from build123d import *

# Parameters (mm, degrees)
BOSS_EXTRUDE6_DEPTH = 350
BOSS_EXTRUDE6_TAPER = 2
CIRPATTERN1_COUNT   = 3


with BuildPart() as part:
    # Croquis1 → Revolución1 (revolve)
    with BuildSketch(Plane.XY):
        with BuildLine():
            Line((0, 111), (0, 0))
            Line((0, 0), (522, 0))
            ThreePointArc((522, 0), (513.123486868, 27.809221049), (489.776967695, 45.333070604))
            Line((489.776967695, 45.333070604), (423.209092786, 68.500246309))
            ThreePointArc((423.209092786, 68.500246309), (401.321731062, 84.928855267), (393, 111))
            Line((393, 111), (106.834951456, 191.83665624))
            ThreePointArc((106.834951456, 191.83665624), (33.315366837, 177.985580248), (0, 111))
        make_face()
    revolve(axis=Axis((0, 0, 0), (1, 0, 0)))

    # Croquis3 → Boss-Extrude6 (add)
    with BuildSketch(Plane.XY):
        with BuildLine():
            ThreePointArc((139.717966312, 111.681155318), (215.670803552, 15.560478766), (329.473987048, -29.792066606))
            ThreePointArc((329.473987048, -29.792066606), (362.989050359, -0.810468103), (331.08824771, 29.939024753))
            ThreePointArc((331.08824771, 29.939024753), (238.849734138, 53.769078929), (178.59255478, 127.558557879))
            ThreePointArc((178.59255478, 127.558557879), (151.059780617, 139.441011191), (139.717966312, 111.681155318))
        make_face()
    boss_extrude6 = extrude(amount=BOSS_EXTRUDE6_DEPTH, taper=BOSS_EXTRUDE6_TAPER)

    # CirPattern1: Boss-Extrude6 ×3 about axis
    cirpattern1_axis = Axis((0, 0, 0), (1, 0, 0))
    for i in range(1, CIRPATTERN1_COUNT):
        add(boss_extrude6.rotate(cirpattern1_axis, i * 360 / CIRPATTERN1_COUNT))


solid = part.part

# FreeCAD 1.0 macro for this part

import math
import FreeCAD as App
import Part
import Sketcher
from FreeCAD import Vector
Q = App.Units.Quantity

doc = App.newDocument("Part")
params = doc.addObject("Spreadsheet::Sheet", "Params")
for row, (alias, value) in enumerate([
    ("sketch1_radius", "48 mm"),
    ("sketch1_radius2", "45 mm"),
    ("sketch1_radius3", "84 mm"),
    ("sketch1_width", "522 mm"),
    ("sketch1_height", "111 mm"),
    ("revolution_angle", "360 deg"),
    ("sketch2_radius", "237 mm"),
    ("sketch2_radius2", "30 mm"),
    ("sketch2_radius3", "153 mm"),
    ("sketch2_radius4", "21 mm"),
    ("pad1_length", "350 mm"),
    ("pad1_taper", "-2 deg"),
], start=1):
    params.set(f"A{row}", alias)
    params.set(f"B{row}", "=" + value)
    params.setAlias(f"B{row}", alias)

body = doc.addObject("PartDesign::Body", "Body")

sketch1 = body.newObject("Sketcher::SketchObject", "Sketch")
sketch1.AttachmentSupport = (doc.getObject("XY_Plane"), [""])
sketch1.MapMode = "FlatFace"
sketch1.addGeometry([
    Part.LineSegment(Vector(0, 111, 0), Vector(0, 0, 0)),
    Part.LineSegment(Vector(0, 0, 0), Vector(522, 0, 0)),
    Part.ArcOfCircle(Part.Circle(Vector(474, 0, 0), Vector(0, 0, 1), 48), math.radians(0), math.radians(71)),
    Part.LineSegment(Vector(490, 45, 0), Vector(423, 69, 0)),
    Part.ArcOfCircle(Part.Circle(Vector(438, 111, 0), Vector(0, 0, 1), 45), math.radians(-180), math.radians(-109)),
    Part.LineSegment(Vector(393, 111, 0), Vector(107, 192, 0)),
    Part.ArcOfCircle(Part.Circle(Vector(84, 111, 0), Vector(0, 0, 1), 84), math.radians(74), math.radians(180)),
], False)
sketch1.addConstraint([
    Sketcher.Constraint("Coincident", 0, 2, 1, 1),
    Sketcher.Constraint("Coincident", 1, 2, 2, 1),
    Sketcher.Constraint("Tangent", 2, 2, 3, 1),
    Sketcher.Constraint("Tangent", 3, 2, 4, 2),
    Sketcher.Constraint("Coincident", 4, 1, 5, 1),
    Sketcher.Constraint("Tangent", 5, 2, 6, 1),
    Sketcher.Constraint("Tangent", 6, 2, 0, 1),
    Sketcher.Constraint("Vertical", 0),
    Sketcher.Constraint("Horizontal", 1),
    Sketcher.Constraint("Coincident", 0, 2, -1, 1),
    Sketcher.Constraint("PointOnObject", 2, 3, -1),
    Sketcher.Constraint("Horizontal", 4, 3, 6, 3),
    Sketcher.Constraint("Horizontal", 6, 3, 4, 1),
    Sketcher.Constraint("Radius", 2, Q("48 mm")),
    Sketcher.Constraint("Radius", 4, Q("45 mm")),
    Sketcher.Constraint("Radius", 6, Q("84 mm")),
    Sketcher.Constraint("DistanceX", 1, 1, 1, 2, Q("522 mm")),
    Sketcher.Constraint("DistanceY", 0, 2, 0, 1, Q("111 mm")),
    Sketcher.Constraint("DistanceX", -1, 1, 4, 3, Q("438 mm")),
])
sketch1.setExpression("Constraints[13]", "Params.sketch1_radius")
sketch1.setExpression("Constraints[14]", "Params.sketch1_radius2")
sketch1.setExpression("Constraints[15]", "Params.sketch1_radius3")
sketch1.setExpression("Constraints[16]", "Params.sketch1_width")
sketch1.setExpression("Constraints[17]", "Params.sketch1_height")
revolution = body.newObject("PartDesign::Revolution", "Revolution")
revolution.Profile = sketch1
revolution.ReferenceAxis = (sketch1, ["H_Axis"])
revolution.setExpression("Angle", "Params.revolution_angle")

sketch2 = body.newObject("Sketcher::SketchObject", "Sketch001")
sketch2.AttachmentSupport = (doc.getObject("XY_Plane"), [""])
sketch2.MapMode = "FlatFace"
sketch2.addGeometry([
    Part.ArcOfCircle(Part.Circle(Vector(357, 206, 0), Vector(0, 0, 1), 237), math.radians(-157), math.radians(-97)),
    Part.ArcOfCircle(Part.Circle(Vector(333, 0, 0), Vector(0, 0, 1), 30), math.radians(-97), math.radians(94)),
    Part.ArcOfCircle(Part.Circle(Vector(321, 183, 0), Vector(0, 0, 1), 153), math.radians(-159), math.radians(-86)),
    Part.ArcOfCircle(Part.Circle(Vector(159, 120, 0), Vector(0, 0, 1), 21), math.radians(21), math.radians(203)),
], False)
sketch2.addConstraint([
    Sketcher.Constraint("Tangent", 0, 2, 1, 1),
    Sketcher.Constraint("Tangent", 1, 2, 2, 2),
    Sketcher.Constraint("Tangent", 2, 1, 3, 1),
    Sketcher.Constraint("Tangent", 3, 2, 0, 1),
    Sketcher.Constraint("PointOnObject", 1, 3, -1),
    Sketcher.Constraint("Radius", 0, Q("237 mm")),
    Sketcher.Constraint("Radius", 1, Q("30 mm")),
    Sketcher.Constraint("Radius", 2, Q("153 mm")),
    Sketcher.Constraint("Radius", 3, Q("21 mm")),
    Sketcher.Constraint("DistanceX", -1, 1, 1, 3, Q("333 mm")),
    Sketcher.Constraint("DistanceX", -1, 1, 3, 3, Q("159 mm")),
    Sketcher.Constraint("DistanceY", -1, 1, 3, 3, Q("120 mm")),
])
sketch2.setExpression("Constraints[5]", "Params.sketch2_radius")
sketch2.setExpression("Constraints[6]", "Params.sketch2_radius2")
sketch2.setExpression("Constraints[7]", "Params.sketch2_radius3")
sketch2.setExpression("Constraints[8]", "Params.sketch2_radius4")
pad1 = body.newObject("PartDesign::Pad", "Pad")
pad1.Profile = sketch2
pad1.setExpression("Length", "Params.pad1_length")
pad1.setExpression("TaperAngle", "Params.pad1_taper")
doc.recompute()

polarpattern = body.newObject("PartDesign::PolarPattern", "PolarPattern")
polarpattern.Originals = [pad1]
polarpattern.Axis = (doc.getObject("X_Axis"), [""])
polarpattern.Angle = 360
polarpattern.Occurrences = 3
body.Tip = polarpattern

doc.recompute()
